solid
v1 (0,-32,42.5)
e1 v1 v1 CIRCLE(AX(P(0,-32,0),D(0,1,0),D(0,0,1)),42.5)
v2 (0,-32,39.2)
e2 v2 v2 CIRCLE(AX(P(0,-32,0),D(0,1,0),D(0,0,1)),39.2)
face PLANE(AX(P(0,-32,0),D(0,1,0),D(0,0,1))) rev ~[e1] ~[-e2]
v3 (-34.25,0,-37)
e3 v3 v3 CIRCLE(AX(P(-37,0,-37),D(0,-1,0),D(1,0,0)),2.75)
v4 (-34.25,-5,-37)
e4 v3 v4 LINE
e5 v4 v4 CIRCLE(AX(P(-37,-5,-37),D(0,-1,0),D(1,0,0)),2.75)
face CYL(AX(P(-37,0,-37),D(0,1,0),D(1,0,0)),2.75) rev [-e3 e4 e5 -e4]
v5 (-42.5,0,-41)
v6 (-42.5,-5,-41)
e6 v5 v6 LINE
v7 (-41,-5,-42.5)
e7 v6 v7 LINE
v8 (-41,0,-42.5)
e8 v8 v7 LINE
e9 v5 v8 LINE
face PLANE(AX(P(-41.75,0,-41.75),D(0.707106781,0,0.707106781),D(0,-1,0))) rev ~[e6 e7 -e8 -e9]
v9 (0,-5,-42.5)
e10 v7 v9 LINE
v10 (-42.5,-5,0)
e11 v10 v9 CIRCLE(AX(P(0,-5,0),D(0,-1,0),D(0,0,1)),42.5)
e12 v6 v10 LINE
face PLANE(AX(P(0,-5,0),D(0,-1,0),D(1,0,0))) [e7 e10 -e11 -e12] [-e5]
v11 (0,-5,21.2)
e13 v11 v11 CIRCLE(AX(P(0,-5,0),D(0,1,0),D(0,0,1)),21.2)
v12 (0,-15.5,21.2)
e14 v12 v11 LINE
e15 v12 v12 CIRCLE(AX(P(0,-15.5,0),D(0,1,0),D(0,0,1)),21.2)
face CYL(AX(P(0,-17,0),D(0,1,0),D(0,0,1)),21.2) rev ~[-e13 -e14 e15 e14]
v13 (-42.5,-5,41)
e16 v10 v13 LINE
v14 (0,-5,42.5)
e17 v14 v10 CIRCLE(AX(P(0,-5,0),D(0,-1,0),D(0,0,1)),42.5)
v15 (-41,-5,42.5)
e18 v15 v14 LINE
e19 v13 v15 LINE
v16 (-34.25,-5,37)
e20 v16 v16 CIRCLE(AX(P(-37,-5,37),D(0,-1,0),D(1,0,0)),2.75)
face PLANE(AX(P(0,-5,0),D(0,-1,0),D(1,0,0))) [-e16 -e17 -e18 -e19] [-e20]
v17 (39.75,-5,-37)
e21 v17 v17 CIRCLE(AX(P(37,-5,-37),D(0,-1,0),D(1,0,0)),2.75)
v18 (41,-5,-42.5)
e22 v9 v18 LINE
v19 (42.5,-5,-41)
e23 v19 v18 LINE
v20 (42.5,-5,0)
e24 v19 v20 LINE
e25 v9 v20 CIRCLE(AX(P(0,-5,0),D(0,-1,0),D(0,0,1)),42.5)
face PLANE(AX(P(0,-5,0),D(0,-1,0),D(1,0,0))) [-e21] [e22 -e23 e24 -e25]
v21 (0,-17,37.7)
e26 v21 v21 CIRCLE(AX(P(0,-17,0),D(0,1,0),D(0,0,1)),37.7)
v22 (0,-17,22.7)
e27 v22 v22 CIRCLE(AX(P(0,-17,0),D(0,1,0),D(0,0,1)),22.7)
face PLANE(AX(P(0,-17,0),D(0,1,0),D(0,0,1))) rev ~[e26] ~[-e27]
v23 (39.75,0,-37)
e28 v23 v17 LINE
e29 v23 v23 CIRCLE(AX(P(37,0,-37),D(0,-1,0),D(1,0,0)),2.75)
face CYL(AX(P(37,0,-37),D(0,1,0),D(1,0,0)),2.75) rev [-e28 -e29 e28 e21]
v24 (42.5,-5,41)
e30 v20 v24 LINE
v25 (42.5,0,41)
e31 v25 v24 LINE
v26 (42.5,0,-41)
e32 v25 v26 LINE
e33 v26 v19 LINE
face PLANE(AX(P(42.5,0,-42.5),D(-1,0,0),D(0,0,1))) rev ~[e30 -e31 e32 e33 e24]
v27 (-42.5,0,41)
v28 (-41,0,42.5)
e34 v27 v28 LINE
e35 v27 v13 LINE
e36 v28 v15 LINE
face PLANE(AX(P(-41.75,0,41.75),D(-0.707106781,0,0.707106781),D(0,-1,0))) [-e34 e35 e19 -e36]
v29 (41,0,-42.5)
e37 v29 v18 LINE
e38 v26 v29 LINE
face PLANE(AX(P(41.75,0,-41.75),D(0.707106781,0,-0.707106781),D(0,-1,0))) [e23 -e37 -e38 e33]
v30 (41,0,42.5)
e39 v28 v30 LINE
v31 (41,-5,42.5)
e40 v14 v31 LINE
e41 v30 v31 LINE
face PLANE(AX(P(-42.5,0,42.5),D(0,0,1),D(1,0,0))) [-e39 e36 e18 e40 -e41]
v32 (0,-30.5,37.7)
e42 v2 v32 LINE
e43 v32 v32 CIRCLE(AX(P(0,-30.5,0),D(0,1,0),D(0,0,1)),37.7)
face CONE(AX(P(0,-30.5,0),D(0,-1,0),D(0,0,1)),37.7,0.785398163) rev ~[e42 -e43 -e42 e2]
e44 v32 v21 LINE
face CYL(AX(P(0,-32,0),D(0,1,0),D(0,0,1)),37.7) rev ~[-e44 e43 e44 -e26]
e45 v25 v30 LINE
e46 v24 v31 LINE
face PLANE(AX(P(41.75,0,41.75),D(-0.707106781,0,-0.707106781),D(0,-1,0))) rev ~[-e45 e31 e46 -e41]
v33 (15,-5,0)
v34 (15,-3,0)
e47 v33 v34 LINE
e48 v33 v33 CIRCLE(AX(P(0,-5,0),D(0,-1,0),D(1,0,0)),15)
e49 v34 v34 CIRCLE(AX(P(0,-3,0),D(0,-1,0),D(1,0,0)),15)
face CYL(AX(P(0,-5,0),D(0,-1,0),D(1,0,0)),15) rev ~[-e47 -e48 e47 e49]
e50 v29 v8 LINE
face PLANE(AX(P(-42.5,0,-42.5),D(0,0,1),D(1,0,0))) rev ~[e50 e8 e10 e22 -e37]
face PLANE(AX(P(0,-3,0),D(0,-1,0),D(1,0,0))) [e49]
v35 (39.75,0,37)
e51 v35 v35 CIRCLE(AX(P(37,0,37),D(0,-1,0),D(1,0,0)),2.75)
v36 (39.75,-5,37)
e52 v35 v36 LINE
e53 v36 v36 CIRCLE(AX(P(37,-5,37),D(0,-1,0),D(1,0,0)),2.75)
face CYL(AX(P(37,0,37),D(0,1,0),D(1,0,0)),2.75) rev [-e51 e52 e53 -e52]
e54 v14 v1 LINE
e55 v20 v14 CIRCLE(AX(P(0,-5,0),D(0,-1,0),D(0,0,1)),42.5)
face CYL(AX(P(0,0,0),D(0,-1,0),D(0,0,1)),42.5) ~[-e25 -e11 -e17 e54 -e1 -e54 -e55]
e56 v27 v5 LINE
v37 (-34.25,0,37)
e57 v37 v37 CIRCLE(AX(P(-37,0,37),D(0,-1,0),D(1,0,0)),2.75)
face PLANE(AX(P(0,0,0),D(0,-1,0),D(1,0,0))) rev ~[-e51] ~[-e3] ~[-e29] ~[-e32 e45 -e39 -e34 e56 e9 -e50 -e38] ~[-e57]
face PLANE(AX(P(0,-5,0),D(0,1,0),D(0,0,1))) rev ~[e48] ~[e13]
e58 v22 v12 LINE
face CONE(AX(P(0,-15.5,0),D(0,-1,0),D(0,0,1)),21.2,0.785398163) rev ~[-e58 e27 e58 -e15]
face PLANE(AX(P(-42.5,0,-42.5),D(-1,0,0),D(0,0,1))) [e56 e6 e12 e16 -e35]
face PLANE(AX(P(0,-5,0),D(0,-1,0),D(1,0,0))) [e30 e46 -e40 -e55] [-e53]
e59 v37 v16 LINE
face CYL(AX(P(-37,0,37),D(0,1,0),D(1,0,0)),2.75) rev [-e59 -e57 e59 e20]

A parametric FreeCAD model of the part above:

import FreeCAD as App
import Part
import Sketcher
Q = App.Units.Quantity


def edges_at(feature, points):
    """Names of the edges that pass closest to the given points."""
    edges = feature.Shape.Edges
    near = lambda p: min(range(len(edges)), key=lambda i: edges[i].distToShape(Part.Vertex(*p))[0])
    return sorted({f"Edge{near(p) + 1}" for p in points})

doc = App.newDocument("Part")
body = doc.addObject("PartDesign::Body", "Body")

sketch1 = body.newObject("Sketcher::SketchObject", "Sketch")
sketch1.AttachmentSupport = (doc.getObject("YZ_Plane"), [""])
sketch1.MapMode = "FlatFace"
sketch1.addGeometry(Part.LineSegment(App.Vector(-5, 0, 0), App.Vector(0, 0, 0)), False)
sketch1.addGeometry(Part.LineSegment(App.Vector(0, 0, 0), App.Vector(0, 42.5, 0)), False)
sketch1.addGeometry(Part.LineSegment(App.Vector(0, 42.5, 0), App.Vector(-32, 42.5, 0)), False)
sketch1.addGeometry(Part.LineSegment(App.Vector(-32, 42.5, 0), App.Vector(-32, 37.7, 0)), False)
sketch1.addGeometry(Part.LineSegment(App.Vector(-32, 37.7, 0), App.Vector(-17, 37.7, 0)), False)
sketch1.addGeometry(Part.LineSegment(App.Vector(-17, 37.7, 0), App.Vector(-17, 21.2, 0)), False)
sketch1.addGeometry(Part.LineSegment(App.Vector(-17, 21.2, 0), App.Vector(-5, 21.2, 0)), False)
sketch1.addGeometry(Part.LineSegment(App.Vector(-5, 21.2, 0), App.Vector(-5, 0, 0)), False)
sketch1.addConstraint(Sketcher.Constraint("Coincident", 0, 2, 1, 1))
sketch1.addConstraint(Sketcher.Constraint("Coincident", 1, 2, 2, 1))
sketch1.addConstraint(Sketcher.Constraint("Coincident", 2, 2, 3, 1))
sketch1.addConstraint(Sketcher.Constraint("Coincident", 3, 2, 4, 1))
sketch1.addConstraint(Sketcher.Constraint("Coincident", 4, 2, 5, 1))
sketch1.addConstraint(Sketcher.Constraint("Coincident", 5, 2, 6, 1))
sketch1.addConstraint(Sketcher.Constraint("Coincident", 6, 2, 7, 1))
sketch1.addConstraint(Sketcher.Constraint("Coincident", 7, 2, 0, 1))
sketch1.addConstraint(Sketcher.Constraint("Horizontal", 0))
sketch1.addConstraint(Sketcher.Constraint("Vertical", 1))
sketch1.addConstraint(Sketcher.Constraint("Horizontal", 2))
sketch1.addConstraint(Sketcher.Constraint("Vertical", 3))
sketch1.addConstraint(Sketcher.Constraint("Horizontal", 4))
sketch1.addConstraint(Sketcher.Constraint("Vertical", 5))
sketch1.addConstraint(Sketcher.Constraint("Horizontal", 6))
sketch1.addConstraint(Sketcher.Constraint("Vertical", 7))
sketch1.addConstraint(Sketcher.Constraint("Coincident", 0, 2, -1, 1))
sketch1.addConstraint(Sketcher.Constraint("DistanceX", 0, 1, 0, 2, Q("5 mm")))
sketch1.addConstraint(Sketcher.Constraint("DistanceX", 2, 2, 2, 1, Q("32 mm")))
sketch1.addConstraint(Sketcher.Constraint("DistanceX", 4, 1, 4, 2, Q("15 mm")))
sketch1.addConstraint(Sketcher.Constraint("DistanceY", 1, 1, 1, 2, Q("42.5 mm")))
sketch1.addConstraint(Sketcher.Constraint("DistanceY", 3, 2, 3, 1, Q("4.8 mm")))
sketch1.addConstraint(Sketcher.Constraint("DistanceY", 5, 2, 5, 1, Q("16.5 mm")))
revolution = body.newObject("PartDesign::Revolution", "Revolution")
revolution.Profile = sketch1
revolution.ReferenceAxis = (sketch1, ["H_Axis"])
revolution.Angle = 360

sketch2 = body.newObject("Sketcher::SketchObject", "Sketch001")
sketch2.AttachmentSupport = (doc.getObject("XZ_Plane"), [""])
sketch2.MapMode = "FlatFace"
sketch2.addGeometry(Part.LineSegment(App.Vector(-42.5, 42.5, 0), App.Vector(-42.5, -42.5, 0)), False)
sketch2.addGeometry(Part.LineSegment(App.Vector(-42.5, -42.5, 0), App.Vector(42.5, -42.5, 0)), False)
sketch2.addGeometry(Part.LineSegment(App.Vector(42.5, -42.5, 0), App.Vector(42.5, 42.5, 0)), False)
sketch2.addGeometry(Part.LineSegment(App.Vector(42.5, 42.5, 0), App.Vector(-42.5, 42.5, 0)), False)
sketch2.addGeometry(Part.Circle(App.Vector(-37, -37, 0), App.Vector(0, 0, 1), 2.75), False)
sketch2.addGeometry(Part.Circle(App.Vector(37, -37, 0), App.Vector(0, 0, 1), 2.75), False)
sketch2.addGeometry(Part.Circle(App.Vector(-37, 37, 0), App.Vector(0, 0, 1), 2.75), False)
sketch2.addGeometry(Part.Circle(App.Vector(37, 37, 0), App.Vector(0, 0, 1), 2.75), False)
sketch2.addConstraint(Sketcher.Constraint("Coincident", 0, 2, 1, 1))
sketch2.addConstraint(Sketcher.Constraint("Coincident", 1, 2, 2, 1))
sketch2.addConstraint(Sketcher.Constraint("Coincident", 2, 2, 3, 1))
sketch2.addConstraint(Sketcher.Constraint("Coincident", 3, 2, 0, 1))
sketch2.addConstraint(Sketcher.Constraint("Vertical", 0))
sketch2.addConstraint(Sketcher.Constraint("Horizontal", 1))
sketch2.addConstraint(Sketcher.Constraint("Vertical", 2))
sketch2.addConstraint(Sketcher.Constraint("Horizontal", 3))
sketch2.addConstraint(Sketcher.Constraint("Equal", 4, 5))
sketch2.addConstraint(Sketcher.Constraint("Equal", 5, 6))
sketch2.addConstraint(Sketcher.Constraint("Equal", 6, 7))
sketch2.addConstraint(Sketcher.Constraint("Symmetric", 5, 3, 6, 3, -1, 1))
sketch2.addConstraint(Sketcher.Constraint("Symmetric", 4, 3, 7, 3, -1, 1))
sketch2.addConstraint(Sketcher.Constraint("Symmetric", 0, 2, 2, 2, -1, 1))
sketch2.addConstraint(Sketcher.Constraint("Symmetric", 4, 3, 5, 3, -2))
sketch2.addConstraint(Sketcher.Constraint("Equal", 3, 0))
sketch2.addConstraint(Sketcher.Constraint("Diameter", 4, Q("5.5 mm")))
sketch2.addConstraint(Sketcher.Constraint("DistanceX", 1, 1, 1, 2, Q("85 mm")))
sketch2.addConstraint(Sketcher.Constraint("DistanceX", 4, 3, -1, 1, Q("37 mm")))
sketch2.addConstraint(Sketcher.Constraint("DistanceY", 4, 3, -1, 1, Q("37 mm")))
pad1 = body.newObject("PartDesign::Pad", "Pad")
pad1.Profile = sketch2
pad1.Length = 5
doc.recompute()

chamfer = body.newObject("PartDesign::Chamfer", "Chamfer")
chamfer.Base = (pad1, edges_at(pad1, [
    (0, -32, -37.7),
    (0, -17, -21.2),
    (42.5, -2.5, 42.5),
    (-42.5, -2.5, 42.5),
    (-42.5, -2.5, -42.5),
    (42.5, -2.5, -42.5),
]))
chamfer.Size = 1.5

sketch3 = body.newObject("Sketcher::SketchObject", "Sketch002")
sketch3.AttachmentSupport = (doc.getObject("XZ_Plane"), [""])
sketch3.MapMode = "FlatFace"
sketch3.AttachmentOffset = App.Placement(App.Vector(0, 0, 5), App.Rotation())
sketch3.addGeometry(Part.Circle(App.Vector(0, 0, 0), App.Vector(0, 0, 1), 15), False)
sketch3.addConstraint(Sketcher.Constraint("Coincident", 0, 3, -1, 1))
sketch3.addConstraint(Sketcher.Constraint("Diameter", 0, Q("30 mm")))
pocket1 = body.newObject("PartDesign::Pocket", "Pocket")
pocket1.Profile = sketch3
pocket1.Length = 2

doc.recompute()
